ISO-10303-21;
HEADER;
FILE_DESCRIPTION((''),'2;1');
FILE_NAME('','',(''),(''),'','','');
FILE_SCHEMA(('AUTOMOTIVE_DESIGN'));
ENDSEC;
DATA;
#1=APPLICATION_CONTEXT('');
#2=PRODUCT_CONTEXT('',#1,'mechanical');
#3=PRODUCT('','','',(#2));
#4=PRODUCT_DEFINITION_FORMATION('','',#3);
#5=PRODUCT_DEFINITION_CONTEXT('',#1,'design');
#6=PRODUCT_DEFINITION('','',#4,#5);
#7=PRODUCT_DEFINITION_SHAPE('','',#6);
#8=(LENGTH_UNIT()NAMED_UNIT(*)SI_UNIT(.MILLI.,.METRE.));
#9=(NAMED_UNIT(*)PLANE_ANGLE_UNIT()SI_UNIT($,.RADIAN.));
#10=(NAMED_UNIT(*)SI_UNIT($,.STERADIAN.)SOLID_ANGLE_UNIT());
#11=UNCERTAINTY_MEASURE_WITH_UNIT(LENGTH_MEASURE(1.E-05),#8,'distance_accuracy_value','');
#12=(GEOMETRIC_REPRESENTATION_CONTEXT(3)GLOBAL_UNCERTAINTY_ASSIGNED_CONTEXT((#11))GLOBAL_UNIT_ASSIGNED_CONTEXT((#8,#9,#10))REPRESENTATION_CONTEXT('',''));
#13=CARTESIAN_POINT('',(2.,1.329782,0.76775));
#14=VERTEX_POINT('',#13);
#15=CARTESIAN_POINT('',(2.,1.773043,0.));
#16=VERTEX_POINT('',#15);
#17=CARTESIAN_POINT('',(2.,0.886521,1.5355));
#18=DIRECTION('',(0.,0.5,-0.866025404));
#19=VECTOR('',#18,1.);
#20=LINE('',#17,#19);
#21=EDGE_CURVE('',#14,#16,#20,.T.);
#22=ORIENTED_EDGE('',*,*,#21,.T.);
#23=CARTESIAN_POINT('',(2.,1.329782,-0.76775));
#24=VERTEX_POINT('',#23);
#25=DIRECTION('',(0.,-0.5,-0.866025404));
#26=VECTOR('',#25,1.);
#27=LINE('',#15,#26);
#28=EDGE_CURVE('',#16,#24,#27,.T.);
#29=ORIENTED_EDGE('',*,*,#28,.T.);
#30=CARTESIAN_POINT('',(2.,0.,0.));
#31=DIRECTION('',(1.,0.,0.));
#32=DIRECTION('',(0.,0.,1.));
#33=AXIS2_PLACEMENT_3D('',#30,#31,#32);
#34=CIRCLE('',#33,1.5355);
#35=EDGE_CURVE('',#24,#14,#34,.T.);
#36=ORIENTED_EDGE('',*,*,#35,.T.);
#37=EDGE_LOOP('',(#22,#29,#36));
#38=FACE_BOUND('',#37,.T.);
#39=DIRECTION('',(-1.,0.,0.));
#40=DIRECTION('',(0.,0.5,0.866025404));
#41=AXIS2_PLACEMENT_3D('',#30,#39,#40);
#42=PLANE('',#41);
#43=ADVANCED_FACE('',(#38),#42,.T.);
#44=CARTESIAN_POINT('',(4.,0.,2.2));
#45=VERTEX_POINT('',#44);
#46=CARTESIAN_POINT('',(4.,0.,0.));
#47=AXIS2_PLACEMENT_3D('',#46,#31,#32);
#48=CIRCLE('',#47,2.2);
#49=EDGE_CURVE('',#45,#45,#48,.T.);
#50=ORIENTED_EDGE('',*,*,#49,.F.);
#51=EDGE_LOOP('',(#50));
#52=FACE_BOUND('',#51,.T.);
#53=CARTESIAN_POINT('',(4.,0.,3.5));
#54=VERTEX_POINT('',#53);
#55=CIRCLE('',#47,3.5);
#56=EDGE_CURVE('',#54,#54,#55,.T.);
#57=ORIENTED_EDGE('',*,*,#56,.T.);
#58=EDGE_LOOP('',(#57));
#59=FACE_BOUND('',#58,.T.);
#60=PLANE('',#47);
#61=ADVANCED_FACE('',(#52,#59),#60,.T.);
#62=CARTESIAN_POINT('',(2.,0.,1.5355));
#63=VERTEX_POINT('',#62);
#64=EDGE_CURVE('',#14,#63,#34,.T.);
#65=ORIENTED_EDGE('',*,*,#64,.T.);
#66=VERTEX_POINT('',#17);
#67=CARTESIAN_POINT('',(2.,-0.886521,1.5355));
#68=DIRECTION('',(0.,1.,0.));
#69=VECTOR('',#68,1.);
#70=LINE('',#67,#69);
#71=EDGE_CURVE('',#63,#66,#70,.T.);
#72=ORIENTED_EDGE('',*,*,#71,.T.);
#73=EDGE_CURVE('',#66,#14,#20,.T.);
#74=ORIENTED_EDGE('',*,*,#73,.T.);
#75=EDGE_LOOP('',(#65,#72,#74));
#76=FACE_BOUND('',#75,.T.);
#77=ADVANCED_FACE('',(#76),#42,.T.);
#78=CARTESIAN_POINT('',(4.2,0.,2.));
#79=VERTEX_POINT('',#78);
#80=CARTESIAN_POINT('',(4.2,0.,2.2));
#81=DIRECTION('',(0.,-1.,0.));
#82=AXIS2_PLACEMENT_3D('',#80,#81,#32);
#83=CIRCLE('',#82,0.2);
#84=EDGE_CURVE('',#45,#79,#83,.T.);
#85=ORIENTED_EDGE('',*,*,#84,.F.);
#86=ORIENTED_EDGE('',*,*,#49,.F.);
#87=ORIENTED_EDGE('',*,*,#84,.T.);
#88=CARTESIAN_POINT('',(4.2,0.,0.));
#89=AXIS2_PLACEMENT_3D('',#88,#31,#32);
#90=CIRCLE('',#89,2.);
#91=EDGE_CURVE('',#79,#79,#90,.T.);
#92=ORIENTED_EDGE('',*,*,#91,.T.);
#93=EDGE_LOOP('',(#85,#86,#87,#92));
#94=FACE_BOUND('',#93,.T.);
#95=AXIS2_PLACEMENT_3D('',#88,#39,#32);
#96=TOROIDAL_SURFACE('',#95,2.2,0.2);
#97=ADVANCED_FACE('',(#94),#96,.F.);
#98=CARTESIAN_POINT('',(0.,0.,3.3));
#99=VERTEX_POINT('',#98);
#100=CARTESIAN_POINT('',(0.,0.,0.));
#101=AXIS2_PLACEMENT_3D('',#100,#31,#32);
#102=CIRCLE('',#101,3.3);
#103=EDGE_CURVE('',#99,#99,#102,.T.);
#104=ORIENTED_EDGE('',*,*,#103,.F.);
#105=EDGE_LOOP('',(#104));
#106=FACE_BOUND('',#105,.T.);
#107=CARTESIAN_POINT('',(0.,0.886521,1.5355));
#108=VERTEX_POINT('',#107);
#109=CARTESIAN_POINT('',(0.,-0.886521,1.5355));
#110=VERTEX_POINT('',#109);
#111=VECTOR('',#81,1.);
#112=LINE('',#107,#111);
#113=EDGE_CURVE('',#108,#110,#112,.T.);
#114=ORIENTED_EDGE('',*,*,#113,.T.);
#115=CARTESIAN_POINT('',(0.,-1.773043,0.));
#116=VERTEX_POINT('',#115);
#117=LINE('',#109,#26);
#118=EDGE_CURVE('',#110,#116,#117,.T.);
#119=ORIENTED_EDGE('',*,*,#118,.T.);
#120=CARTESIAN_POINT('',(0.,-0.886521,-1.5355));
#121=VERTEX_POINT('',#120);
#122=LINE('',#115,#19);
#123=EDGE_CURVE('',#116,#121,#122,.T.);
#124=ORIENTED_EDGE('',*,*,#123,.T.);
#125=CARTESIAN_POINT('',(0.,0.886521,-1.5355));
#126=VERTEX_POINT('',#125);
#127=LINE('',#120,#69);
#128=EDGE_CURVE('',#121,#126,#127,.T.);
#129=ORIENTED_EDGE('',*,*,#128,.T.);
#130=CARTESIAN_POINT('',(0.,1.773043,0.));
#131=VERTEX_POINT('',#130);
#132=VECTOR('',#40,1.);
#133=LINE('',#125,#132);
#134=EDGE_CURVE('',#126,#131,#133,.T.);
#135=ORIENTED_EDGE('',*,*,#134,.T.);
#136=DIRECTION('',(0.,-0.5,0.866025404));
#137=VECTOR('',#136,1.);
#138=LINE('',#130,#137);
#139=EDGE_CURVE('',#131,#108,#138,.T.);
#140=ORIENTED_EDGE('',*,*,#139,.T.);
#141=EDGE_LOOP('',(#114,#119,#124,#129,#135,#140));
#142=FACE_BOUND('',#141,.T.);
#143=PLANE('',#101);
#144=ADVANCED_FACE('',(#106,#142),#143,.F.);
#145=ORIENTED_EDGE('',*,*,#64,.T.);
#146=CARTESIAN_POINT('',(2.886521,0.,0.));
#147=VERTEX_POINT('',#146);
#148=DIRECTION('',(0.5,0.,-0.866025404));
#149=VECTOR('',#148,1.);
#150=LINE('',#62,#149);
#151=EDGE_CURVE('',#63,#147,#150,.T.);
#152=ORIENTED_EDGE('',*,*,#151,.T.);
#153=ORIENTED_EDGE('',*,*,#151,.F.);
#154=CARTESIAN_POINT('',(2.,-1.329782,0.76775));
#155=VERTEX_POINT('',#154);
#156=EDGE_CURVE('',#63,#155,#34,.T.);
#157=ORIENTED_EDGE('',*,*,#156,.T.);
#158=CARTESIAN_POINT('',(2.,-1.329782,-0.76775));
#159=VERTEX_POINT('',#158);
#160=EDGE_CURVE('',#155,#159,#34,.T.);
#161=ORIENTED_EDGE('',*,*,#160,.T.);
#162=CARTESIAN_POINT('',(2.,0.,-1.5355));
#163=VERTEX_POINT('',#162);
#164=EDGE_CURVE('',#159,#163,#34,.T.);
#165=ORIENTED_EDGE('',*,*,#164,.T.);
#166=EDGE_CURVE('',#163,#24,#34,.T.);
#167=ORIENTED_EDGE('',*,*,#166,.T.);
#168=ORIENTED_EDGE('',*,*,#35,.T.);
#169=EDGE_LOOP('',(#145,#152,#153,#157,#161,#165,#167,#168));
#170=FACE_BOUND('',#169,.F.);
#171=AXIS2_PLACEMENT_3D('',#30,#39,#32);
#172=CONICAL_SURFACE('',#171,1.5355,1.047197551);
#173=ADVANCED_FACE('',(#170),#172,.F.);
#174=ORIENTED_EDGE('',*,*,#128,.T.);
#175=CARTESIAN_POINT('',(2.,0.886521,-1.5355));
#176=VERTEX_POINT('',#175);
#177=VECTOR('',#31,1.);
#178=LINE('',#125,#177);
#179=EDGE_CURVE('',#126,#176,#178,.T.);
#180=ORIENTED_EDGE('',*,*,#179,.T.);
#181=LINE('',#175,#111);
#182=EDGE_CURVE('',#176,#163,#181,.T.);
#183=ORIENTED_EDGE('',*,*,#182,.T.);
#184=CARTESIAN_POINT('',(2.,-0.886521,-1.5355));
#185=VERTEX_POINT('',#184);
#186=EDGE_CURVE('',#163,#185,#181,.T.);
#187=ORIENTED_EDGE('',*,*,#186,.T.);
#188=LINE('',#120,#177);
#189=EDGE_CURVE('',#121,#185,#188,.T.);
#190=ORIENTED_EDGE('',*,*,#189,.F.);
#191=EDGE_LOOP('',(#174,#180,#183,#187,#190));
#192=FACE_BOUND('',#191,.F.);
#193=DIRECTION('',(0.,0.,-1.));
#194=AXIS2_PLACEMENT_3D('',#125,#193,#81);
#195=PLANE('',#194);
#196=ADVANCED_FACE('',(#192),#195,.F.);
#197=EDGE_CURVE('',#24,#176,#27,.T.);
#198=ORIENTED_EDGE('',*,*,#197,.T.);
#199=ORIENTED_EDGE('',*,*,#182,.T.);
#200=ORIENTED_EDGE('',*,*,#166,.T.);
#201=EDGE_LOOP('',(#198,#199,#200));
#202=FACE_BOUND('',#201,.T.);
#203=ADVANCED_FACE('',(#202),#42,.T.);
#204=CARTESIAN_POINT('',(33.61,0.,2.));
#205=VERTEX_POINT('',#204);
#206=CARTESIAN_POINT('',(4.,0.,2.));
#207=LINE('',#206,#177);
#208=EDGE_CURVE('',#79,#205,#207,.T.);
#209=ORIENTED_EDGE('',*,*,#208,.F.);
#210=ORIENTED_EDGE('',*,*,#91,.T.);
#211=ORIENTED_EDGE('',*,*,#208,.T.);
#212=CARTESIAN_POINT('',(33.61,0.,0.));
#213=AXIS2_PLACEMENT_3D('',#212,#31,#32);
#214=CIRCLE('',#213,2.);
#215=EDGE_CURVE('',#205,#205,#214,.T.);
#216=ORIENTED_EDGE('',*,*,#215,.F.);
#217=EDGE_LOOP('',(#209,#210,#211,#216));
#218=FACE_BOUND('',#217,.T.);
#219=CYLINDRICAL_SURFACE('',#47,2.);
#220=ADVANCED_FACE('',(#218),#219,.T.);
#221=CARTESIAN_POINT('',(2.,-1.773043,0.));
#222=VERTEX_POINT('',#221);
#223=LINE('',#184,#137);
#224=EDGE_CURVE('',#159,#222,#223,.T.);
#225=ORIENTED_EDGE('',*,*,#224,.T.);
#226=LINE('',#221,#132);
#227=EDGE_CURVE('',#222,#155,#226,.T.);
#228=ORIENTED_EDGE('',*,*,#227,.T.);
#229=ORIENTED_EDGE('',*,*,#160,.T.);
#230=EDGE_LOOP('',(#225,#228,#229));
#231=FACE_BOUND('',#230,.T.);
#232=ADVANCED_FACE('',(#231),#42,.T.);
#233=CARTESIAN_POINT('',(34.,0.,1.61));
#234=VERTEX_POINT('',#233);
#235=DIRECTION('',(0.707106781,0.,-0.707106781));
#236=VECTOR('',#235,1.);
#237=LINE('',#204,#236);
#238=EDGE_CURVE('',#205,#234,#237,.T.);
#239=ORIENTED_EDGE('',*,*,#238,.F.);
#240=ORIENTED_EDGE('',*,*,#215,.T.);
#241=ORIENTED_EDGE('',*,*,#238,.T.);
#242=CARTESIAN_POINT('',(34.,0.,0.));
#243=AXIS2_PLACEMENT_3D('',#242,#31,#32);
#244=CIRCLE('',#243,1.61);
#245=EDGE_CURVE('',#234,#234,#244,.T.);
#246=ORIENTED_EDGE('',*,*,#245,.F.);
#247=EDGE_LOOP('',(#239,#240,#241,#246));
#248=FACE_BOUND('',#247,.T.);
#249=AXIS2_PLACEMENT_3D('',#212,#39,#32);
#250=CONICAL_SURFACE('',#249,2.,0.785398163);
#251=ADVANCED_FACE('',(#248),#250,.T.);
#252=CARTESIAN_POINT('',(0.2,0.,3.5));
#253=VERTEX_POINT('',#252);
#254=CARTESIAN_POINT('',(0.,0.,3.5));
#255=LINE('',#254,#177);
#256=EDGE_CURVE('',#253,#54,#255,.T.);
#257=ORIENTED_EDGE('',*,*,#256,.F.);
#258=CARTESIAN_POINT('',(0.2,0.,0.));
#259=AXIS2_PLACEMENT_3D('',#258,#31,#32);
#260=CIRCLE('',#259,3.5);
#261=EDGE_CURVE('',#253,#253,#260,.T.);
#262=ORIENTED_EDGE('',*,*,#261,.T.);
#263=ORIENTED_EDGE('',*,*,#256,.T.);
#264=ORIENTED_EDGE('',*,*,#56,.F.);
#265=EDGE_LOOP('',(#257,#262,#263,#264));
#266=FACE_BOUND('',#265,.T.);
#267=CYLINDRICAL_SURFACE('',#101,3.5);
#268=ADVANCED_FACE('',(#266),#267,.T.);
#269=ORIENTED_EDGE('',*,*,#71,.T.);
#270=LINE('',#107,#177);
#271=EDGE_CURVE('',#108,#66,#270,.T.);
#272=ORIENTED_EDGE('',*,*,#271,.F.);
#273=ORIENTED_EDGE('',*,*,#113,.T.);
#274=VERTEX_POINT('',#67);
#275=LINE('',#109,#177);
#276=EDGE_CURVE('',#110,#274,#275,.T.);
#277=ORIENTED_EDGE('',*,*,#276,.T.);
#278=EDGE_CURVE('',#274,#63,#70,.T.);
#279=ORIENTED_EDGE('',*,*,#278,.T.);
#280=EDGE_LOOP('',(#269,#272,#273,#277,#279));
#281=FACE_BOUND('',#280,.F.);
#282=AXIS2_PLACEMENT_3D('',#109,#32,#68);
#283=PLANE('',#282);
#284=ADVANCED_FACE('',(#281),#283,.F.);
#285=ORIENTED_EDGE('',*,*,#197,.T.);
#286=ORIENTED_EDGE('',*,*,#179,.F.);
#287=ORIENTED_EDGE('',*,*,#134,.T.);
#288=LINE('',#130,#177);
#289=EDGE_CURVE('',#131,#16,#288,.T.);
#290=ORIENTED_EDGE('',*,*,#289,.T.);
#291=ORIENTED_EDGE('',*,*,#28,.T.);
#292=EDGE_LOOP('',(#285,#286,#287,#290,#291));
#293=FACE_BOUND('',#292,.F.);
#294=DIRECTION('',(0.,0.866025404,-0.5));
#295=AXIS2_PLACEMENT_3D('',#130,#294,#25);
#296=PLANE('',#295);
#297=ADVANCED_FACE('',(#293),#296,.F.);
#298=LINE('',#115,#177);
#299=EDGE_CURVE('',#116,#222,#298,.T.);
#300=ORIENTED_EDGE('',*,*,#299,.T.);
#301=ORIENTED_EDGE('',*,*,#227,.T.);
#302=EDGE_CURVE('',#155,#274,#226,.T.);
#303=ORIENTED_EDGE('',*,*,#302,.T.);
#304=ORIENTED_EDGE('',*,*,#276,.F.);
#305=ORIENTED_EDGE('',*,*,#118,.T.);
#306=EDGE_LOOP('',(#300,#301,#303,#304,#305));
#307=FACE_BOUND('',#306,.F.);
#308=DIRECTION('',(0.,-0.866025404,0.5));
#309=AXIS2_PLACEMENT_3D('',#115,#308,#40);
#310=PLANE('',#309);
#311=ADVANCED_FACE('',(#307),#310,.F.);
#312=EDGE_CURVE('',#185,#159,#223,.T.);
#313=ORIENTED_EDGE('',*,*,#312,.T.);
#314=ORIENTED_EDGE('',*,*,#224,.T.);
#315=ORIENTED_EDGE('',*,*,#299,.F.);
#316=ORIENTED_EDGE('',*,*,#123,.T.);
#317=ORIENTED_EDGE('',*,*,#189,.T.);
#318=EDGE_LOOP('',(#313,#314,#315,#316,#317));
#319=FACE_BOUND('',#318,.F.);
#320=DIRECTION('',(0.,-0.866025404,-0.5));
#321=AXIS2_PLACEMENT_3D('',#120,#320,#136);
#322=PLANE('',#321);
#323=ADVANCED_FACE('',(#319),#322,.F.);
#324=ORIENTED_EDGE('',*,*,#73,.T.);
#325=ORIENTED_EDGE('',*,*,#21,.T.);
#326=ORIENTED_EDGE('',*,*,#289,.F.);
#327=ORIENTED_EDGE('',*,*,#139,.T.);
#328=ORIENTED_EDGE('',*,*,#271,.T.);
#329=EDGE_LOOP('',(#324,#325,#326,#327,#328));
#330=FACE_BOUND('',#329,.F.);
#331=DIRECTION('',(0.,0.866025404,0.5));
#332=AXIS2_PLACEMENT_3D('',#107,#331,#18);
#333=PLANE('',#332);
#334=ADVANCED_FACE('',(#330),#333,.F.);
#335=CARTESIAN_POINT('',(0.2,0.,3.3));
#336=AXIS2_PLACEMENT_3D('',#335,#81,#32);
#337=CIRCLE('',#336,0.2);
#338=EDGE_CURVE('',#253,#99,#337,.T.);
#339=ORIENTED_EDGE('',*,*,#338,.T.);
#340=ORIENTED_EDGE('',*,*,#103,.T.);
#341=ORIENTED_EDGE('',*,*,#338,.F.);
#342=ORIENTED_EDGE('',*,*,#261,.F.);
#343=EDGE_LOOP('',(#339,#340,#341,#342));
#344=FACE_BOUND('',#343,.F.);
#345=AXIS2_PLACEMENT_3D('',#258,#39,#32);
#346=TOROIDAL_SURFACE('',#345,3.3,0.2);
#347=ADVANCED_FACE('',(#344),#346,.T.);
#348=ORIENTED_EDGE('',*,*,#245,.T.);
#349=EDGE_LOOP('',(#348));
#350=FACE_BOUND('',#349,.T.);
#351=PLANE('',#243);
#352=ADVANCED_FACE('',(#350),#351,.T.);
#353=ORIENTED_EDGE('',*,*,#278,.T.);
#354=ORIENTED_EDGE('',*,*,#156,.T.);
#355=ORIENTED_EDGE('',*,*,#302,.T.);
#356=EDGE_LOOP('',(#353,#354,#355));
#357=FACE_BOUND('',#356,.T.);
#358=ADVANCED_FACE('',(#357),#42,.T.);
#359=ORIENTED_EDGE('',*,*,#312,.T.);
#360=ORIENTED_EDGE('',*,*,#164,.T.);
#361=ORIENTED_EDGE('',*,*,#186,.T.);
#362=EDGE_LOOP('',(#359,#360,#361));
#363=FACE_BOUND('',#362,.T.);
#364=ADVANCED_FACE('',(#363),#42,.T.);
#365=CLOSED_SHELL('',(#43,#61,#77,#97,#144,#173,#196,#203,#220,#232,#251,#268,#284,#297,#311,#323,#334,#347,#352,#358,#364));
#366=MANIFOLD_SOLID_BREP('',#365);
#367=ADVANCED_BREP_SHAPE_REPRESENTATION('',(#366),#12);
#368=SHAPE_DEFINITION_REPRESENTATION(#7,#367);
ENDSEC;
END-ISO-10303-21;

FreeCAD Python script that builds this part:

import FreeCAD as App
import Part
import Sketcher

V = App.Vector
Q = App.Units.Quantity


def edges_at(feature, points):
    """Names of the edges that pass closest to the given points."""
    edges = feature.Shape.Edges
    near = lambda p: min(range(len(edges)), key=lambda i: edges[i].distToShape(Part.Vertex(*p))[0])
    return sorted({f"Edge{near(p) + 1}" for p in points})

doc = App.newDocument("Part")
body = doc.addObject("PartDesign::Body", "Body")

# Sketch on XY plane
sketch1 = body.newObject("Sketcher::SketchObject", "Sketch")
sketch1.AttachmentSupport = (doc.getObject("XY_Plane"), [""])
sketch1.MapMode = "FlatFace"
sketch1.addGeometry([
    Part.LineSegment(V(0, 3.5, 0), V(0, 0, 0)),  # 0
    Part.LineSegment(V(0, 0, 0), V(34, 0, 0)),  # 1
    Part.LineSegment(V(34, 0, 0), V(34, 1.6, 0)),  # 2
    Part.LineSegment(V(34, 1.6, 0), V(33.6, 2, 0)),  # 3
    Part.LineSegment(V(33.6, 2, 0), V(4, 2, 0)),  # 4
    Part.LineSegment(V(4, 2, 0), V(4, 3.5, 0)),  # 5
    Part.LineSegment(V(4, 3.5, 0), V(0, 3.5, 0)),  # 6
], False)
sketch1.addConstraint([
    Sketcher.Constraint("Coincident", 0, 2, 1, 1),
    Sketcher.Constraint("Coincident", 1, 2, 2, 1),
    Sketcher.Constraint("Coincident", 2, 2, 3, 1),
    Sketcher.Constraint("Coincident", 3, 2, 4, 1),
    Sketcher.Constraint("Coincident", 4, 2, 5, 1),
    Sketcher.Constraint("Coincident", 5, 2, 6, 1),
    Sketcher.Constraint("Coincident", 6, 2, 0, 1),
    Sketcher.Constraint("Vertical", 0),
    Sketcher.Constraint("Horizontal", 1),
    Sketcher.Constraint("Vertical", 2),
    Sketcher.Constraint("Horizontal", 4),
    Sketcher.Constraint("Vertical", 5),
    Sketcher.Constraint("Horizontal", 6),
    Sketcher.Constraint("Coincident", 0, 2, -1, 1),
    Sketcher.Constraint("DistanceX", 1, 1, 1, 2, 34.0),
    Sketcher.Constraint("DistanceX", 6, 2, 6, 1, 4.0),
    Sketcher.Constraint("Angle", 3, Q("135 deg")),
    Sketcher.Constraint("DistanceY", 0, 2, 0, 1, 3.5),
    Sketcher.Constraint("DistanceY", 5, 1, 5, 2, 1.5),
    Sketcher.Constraint("DistanceX", 4, 2, 4, 1, 29.61),
])
revolution = body.newObject("PartDesign::Revolution", "Revolution")
revolution.Profile = sketch1
revolution.ReferenceAxis = (sketch1, ["H_Axis"])
revolution.Angle = 360
doc.recompute()

fillet = body.newObject("PartDesign::Fillet", "Fillet")
fillet.Base = (revolution, edges_at(revolution, [(4, 0, -2)]))
fillet.Radius = 0.2
doc.recompute()

fillet2 = body.newObject("PartDesign::Fillet", "Fillet001")
fillet2.Base = (fillet, edges_at(fillet, [(0, 0, -3.5)]))
fillet2.Radius = 0.2

# Sketch on XY plane
sketch2 = body.newObject("Sketcher::SketchObject", "Sketch001")
sketch2.AttachmentSupport = (doc.getObject("XY_Plane"), [""])
sketch2.MapMode = "FlatFace"
sketch2.addGeometry([
    Part.LineSegment(V(2, 1.5, 0), V(0, 1.5, 0)),
    Part.LineSegment(V(0, 1.5, 0), V(0, 0, 0)),
    Part.LineSegment(V(0, 0, 0), V(2.9, 0, 0)),
    Part.LineSegment(V(2.9, 0, 0), V(2, 1.5, 0)),
], False)
sketch2.addConstraint([
    Sketcher.Constraint("Coincident", 0, 2, 1, 1),
    Sketcher.Constraint("Coincident", 1, 2, 2, 1),
    Sketcher.Constraint("Coincident", 2, 2, 3, 1),
    Sketcher.Constraint("Coincident", 3, 2, 0, 1),
    Sketcher.Constraint("Horizontal", 0),
    Sketcher.Constraint("Vertical", 1),
    Sketcher.Constraint("Horizontal", 2),
    Sketcher.Constraint("Coincident", 1, 2, -1, 1),
    Sketcher.Constraint("DistanceX", 0, 2, 0, 1, 2.0),
    Sketcher.Constraint("Angle", 3, Q("120 deg")),
    Sketcher.Constraint("DistanceY", 1, 2, 1, 1, 1.5355),
])
groove = body.newObject("PartDesign::Groove", "Groove")
groove.Profile = sketch2
groove.ReferenceAxis = (sketch2, ["H_Axis"])
groove.Angle = 360

# Sketch on YZ plane
sketch3 = body.newObject("Sketcher::SketchObject", "Sketch002")
sketch3.AttachmentSupport = (doc.getObject("YZ_Plane"), [""])
sketch3.MapMode = "FlatFace"
sketch3.addGeometry([
    Part.LineSegment(V(1.8, 0, 0), V(0.9, -1.5, 0)),  # 0
    Part.LineSegment(V(0.9, -1.5, 0), V(-0.9, -1.5, 0)),  # 1
    Part.LineSegment(V(-0.9, -1.5, 0), V(-1.8, 0, 0)),  # 2
    Part.LineSegment(V(-1.8, 0, 0), V(-0.9, 1.5, 0)),  # 3
    Part.LineSegment(V(-0.9, 1.5, 0), V(0.9, 1.5, 0)),  # 4
    Part.LineSegment(V(0.9, 1.5, 0), V(1.8, 0, 0)),  # 5
], False)
sketch3.addConstraint([
    Sketcher.Constraint("Coincident", 0, 2, 1, 1),
    Sketcher.Constraint("Coincident", 1, 2, 2, 1),
    Sketcher.Constraint("Coincident", 2, 2, 3, 1),
    Sketcher.Constraint("Coincident", 3, 2, 4, 1),
    Sketcher.Constraint("Coincident", 4, 2, 5, 1),
    Sketcher.Constraint("Coincident", 5, 2, 0, 1),
    Sketcher.Constraint("Horizontal", 1),
    Sketcher.Constraint("Horizontal", 4),
    Sketcher.Constraint("Symmetric", 0, 2, 3, 2, -1, 1),
    Sketcher.Constraint("Symmetric", 2, 2, 5, 2, -1, 1),
    Sketcher.Constraint("PointOnObject", 2, 2, -1),
    Sketcher.Constraint("Parallel", 2, 5),
    Sketcher.Constraint("Vertical", 1, 2, 3, 2),
    Sketcher.Constraint("Angle", 0, Q("-120 deg")),
    Sketcher.Constraint("DistanceY", 1, 2, 3, 2, 3.071),
    Sketcher.Constraint("DistanceX", 1, 2, 1, 1, 1.773043),
])
pocket1 = body.newObject("PartDesign::Pocket", "Pocket")
pocket1.Profile = sketch3
pocket1.Length = 2
pocket1.Reversed = True

doc.recompute()
